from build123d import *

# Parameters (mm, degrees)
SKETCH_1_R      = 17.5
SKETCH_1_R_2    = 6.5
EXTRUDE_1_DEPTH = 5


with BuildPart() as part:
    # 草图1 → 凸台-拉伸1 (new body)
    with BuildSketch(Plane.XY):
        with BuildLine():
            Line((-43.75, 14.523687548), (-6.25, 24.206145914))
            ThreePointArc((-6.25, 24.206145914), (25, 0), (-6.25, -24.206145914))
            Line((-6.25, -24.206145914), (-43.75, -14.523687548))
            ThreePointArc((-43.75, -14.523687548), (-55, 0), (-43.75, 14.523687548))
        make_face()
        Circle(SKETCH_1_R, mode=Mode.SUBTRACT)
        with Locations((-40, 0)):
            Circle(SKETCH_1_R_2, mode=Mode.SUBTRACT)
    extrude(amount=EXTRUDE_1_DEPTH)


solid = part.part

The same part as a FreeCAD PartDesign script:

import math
import FreeCAD as App
import Part
import Sketcher
Q = App.Units.Quantity

doc = App.newDocument("Part")
body = doc.addObject("PartDesign::Body", "Body")

# Sketch on XY plane
sketch1 = body.newObject("Sketcher::SketchObject", "Sketch")
sketch1.AttachmentSupport = (doc.getObject("XY_Plane"), [""])
sketch1.MapMode = "FlatFace"
sketch1.addGeometry([
    Part.LineSegment(App.Vector(-6.25, 24.206146, 0), App.Vector(-43.75, 14.523688, 0)),  # 0
    Part.ArcOfCircle(Part.Circle(App.Vector(-40, 0, 0), App.Vector(0, 0, 1), 15), math.radians(104.477512), math.radians(255.522488)),  # 1
    Part.LineSegment(App.Vector(-43.75, -14.523688, 0), App.Vector(-6.25, -24.206146, 0)),  # 2
    Part.ArcOfCircle(Part.Circle(App.Vector(0, 0, 0), App.Vector(0, 0, 1), 25), math.radians(-104.477512), math.radians(104.477512)),  # 3
    Part.Circle(App.Vector(0, 0, 0), App.Vector(0, 0, 1), 17.5),  # 4
    Part.Circle(App.Vector(-40, 0, 0), App.Vector(0, 0, 1), 6.5),  # 5
], False)
sketch1.addConstraint([
    Sketcher.Constraint("Tangent", 0, 2, 1, 1),
    Sketcher.Constraint("Tangent", 1, 2, 2, 1),
    Sketcher.Constraint("Tangent", 2, 2, 3, 1),
    Sketcher.Constraint("Tangent", 3, 2, 0, 1),
    Sketcher.Constraint("Coincident", 3, 3, -1, 1),
    Sketcher.Constraint("Coincident", 4, 3, -1, 1),
    Sketcher.Constraint("Coincident", 5, 3, 1, 3),
    Sketcher.Constraint("PointOnObject", 1, 3, -1),
    Sketcher.Constraint("Diameter", 4, Q("35 mm")),
    Sketcher.Constraint("Diameter", 5, Q("13 mm")),
    Sketcher.Constraint("Radius", 1, Q("15 mm")),
    Sketcher.Constraint("Radius", 3, Q("25 mm")),
    Sketcher.Constraint("DistanceX", 1, 3, -1, 1, Q("40 mm")),
])
pad1 = body.newObject("PartDesign::Pad", "Pad")
pad1.Profile = sketch1
pad1.Length = 5

doc.recompute()
